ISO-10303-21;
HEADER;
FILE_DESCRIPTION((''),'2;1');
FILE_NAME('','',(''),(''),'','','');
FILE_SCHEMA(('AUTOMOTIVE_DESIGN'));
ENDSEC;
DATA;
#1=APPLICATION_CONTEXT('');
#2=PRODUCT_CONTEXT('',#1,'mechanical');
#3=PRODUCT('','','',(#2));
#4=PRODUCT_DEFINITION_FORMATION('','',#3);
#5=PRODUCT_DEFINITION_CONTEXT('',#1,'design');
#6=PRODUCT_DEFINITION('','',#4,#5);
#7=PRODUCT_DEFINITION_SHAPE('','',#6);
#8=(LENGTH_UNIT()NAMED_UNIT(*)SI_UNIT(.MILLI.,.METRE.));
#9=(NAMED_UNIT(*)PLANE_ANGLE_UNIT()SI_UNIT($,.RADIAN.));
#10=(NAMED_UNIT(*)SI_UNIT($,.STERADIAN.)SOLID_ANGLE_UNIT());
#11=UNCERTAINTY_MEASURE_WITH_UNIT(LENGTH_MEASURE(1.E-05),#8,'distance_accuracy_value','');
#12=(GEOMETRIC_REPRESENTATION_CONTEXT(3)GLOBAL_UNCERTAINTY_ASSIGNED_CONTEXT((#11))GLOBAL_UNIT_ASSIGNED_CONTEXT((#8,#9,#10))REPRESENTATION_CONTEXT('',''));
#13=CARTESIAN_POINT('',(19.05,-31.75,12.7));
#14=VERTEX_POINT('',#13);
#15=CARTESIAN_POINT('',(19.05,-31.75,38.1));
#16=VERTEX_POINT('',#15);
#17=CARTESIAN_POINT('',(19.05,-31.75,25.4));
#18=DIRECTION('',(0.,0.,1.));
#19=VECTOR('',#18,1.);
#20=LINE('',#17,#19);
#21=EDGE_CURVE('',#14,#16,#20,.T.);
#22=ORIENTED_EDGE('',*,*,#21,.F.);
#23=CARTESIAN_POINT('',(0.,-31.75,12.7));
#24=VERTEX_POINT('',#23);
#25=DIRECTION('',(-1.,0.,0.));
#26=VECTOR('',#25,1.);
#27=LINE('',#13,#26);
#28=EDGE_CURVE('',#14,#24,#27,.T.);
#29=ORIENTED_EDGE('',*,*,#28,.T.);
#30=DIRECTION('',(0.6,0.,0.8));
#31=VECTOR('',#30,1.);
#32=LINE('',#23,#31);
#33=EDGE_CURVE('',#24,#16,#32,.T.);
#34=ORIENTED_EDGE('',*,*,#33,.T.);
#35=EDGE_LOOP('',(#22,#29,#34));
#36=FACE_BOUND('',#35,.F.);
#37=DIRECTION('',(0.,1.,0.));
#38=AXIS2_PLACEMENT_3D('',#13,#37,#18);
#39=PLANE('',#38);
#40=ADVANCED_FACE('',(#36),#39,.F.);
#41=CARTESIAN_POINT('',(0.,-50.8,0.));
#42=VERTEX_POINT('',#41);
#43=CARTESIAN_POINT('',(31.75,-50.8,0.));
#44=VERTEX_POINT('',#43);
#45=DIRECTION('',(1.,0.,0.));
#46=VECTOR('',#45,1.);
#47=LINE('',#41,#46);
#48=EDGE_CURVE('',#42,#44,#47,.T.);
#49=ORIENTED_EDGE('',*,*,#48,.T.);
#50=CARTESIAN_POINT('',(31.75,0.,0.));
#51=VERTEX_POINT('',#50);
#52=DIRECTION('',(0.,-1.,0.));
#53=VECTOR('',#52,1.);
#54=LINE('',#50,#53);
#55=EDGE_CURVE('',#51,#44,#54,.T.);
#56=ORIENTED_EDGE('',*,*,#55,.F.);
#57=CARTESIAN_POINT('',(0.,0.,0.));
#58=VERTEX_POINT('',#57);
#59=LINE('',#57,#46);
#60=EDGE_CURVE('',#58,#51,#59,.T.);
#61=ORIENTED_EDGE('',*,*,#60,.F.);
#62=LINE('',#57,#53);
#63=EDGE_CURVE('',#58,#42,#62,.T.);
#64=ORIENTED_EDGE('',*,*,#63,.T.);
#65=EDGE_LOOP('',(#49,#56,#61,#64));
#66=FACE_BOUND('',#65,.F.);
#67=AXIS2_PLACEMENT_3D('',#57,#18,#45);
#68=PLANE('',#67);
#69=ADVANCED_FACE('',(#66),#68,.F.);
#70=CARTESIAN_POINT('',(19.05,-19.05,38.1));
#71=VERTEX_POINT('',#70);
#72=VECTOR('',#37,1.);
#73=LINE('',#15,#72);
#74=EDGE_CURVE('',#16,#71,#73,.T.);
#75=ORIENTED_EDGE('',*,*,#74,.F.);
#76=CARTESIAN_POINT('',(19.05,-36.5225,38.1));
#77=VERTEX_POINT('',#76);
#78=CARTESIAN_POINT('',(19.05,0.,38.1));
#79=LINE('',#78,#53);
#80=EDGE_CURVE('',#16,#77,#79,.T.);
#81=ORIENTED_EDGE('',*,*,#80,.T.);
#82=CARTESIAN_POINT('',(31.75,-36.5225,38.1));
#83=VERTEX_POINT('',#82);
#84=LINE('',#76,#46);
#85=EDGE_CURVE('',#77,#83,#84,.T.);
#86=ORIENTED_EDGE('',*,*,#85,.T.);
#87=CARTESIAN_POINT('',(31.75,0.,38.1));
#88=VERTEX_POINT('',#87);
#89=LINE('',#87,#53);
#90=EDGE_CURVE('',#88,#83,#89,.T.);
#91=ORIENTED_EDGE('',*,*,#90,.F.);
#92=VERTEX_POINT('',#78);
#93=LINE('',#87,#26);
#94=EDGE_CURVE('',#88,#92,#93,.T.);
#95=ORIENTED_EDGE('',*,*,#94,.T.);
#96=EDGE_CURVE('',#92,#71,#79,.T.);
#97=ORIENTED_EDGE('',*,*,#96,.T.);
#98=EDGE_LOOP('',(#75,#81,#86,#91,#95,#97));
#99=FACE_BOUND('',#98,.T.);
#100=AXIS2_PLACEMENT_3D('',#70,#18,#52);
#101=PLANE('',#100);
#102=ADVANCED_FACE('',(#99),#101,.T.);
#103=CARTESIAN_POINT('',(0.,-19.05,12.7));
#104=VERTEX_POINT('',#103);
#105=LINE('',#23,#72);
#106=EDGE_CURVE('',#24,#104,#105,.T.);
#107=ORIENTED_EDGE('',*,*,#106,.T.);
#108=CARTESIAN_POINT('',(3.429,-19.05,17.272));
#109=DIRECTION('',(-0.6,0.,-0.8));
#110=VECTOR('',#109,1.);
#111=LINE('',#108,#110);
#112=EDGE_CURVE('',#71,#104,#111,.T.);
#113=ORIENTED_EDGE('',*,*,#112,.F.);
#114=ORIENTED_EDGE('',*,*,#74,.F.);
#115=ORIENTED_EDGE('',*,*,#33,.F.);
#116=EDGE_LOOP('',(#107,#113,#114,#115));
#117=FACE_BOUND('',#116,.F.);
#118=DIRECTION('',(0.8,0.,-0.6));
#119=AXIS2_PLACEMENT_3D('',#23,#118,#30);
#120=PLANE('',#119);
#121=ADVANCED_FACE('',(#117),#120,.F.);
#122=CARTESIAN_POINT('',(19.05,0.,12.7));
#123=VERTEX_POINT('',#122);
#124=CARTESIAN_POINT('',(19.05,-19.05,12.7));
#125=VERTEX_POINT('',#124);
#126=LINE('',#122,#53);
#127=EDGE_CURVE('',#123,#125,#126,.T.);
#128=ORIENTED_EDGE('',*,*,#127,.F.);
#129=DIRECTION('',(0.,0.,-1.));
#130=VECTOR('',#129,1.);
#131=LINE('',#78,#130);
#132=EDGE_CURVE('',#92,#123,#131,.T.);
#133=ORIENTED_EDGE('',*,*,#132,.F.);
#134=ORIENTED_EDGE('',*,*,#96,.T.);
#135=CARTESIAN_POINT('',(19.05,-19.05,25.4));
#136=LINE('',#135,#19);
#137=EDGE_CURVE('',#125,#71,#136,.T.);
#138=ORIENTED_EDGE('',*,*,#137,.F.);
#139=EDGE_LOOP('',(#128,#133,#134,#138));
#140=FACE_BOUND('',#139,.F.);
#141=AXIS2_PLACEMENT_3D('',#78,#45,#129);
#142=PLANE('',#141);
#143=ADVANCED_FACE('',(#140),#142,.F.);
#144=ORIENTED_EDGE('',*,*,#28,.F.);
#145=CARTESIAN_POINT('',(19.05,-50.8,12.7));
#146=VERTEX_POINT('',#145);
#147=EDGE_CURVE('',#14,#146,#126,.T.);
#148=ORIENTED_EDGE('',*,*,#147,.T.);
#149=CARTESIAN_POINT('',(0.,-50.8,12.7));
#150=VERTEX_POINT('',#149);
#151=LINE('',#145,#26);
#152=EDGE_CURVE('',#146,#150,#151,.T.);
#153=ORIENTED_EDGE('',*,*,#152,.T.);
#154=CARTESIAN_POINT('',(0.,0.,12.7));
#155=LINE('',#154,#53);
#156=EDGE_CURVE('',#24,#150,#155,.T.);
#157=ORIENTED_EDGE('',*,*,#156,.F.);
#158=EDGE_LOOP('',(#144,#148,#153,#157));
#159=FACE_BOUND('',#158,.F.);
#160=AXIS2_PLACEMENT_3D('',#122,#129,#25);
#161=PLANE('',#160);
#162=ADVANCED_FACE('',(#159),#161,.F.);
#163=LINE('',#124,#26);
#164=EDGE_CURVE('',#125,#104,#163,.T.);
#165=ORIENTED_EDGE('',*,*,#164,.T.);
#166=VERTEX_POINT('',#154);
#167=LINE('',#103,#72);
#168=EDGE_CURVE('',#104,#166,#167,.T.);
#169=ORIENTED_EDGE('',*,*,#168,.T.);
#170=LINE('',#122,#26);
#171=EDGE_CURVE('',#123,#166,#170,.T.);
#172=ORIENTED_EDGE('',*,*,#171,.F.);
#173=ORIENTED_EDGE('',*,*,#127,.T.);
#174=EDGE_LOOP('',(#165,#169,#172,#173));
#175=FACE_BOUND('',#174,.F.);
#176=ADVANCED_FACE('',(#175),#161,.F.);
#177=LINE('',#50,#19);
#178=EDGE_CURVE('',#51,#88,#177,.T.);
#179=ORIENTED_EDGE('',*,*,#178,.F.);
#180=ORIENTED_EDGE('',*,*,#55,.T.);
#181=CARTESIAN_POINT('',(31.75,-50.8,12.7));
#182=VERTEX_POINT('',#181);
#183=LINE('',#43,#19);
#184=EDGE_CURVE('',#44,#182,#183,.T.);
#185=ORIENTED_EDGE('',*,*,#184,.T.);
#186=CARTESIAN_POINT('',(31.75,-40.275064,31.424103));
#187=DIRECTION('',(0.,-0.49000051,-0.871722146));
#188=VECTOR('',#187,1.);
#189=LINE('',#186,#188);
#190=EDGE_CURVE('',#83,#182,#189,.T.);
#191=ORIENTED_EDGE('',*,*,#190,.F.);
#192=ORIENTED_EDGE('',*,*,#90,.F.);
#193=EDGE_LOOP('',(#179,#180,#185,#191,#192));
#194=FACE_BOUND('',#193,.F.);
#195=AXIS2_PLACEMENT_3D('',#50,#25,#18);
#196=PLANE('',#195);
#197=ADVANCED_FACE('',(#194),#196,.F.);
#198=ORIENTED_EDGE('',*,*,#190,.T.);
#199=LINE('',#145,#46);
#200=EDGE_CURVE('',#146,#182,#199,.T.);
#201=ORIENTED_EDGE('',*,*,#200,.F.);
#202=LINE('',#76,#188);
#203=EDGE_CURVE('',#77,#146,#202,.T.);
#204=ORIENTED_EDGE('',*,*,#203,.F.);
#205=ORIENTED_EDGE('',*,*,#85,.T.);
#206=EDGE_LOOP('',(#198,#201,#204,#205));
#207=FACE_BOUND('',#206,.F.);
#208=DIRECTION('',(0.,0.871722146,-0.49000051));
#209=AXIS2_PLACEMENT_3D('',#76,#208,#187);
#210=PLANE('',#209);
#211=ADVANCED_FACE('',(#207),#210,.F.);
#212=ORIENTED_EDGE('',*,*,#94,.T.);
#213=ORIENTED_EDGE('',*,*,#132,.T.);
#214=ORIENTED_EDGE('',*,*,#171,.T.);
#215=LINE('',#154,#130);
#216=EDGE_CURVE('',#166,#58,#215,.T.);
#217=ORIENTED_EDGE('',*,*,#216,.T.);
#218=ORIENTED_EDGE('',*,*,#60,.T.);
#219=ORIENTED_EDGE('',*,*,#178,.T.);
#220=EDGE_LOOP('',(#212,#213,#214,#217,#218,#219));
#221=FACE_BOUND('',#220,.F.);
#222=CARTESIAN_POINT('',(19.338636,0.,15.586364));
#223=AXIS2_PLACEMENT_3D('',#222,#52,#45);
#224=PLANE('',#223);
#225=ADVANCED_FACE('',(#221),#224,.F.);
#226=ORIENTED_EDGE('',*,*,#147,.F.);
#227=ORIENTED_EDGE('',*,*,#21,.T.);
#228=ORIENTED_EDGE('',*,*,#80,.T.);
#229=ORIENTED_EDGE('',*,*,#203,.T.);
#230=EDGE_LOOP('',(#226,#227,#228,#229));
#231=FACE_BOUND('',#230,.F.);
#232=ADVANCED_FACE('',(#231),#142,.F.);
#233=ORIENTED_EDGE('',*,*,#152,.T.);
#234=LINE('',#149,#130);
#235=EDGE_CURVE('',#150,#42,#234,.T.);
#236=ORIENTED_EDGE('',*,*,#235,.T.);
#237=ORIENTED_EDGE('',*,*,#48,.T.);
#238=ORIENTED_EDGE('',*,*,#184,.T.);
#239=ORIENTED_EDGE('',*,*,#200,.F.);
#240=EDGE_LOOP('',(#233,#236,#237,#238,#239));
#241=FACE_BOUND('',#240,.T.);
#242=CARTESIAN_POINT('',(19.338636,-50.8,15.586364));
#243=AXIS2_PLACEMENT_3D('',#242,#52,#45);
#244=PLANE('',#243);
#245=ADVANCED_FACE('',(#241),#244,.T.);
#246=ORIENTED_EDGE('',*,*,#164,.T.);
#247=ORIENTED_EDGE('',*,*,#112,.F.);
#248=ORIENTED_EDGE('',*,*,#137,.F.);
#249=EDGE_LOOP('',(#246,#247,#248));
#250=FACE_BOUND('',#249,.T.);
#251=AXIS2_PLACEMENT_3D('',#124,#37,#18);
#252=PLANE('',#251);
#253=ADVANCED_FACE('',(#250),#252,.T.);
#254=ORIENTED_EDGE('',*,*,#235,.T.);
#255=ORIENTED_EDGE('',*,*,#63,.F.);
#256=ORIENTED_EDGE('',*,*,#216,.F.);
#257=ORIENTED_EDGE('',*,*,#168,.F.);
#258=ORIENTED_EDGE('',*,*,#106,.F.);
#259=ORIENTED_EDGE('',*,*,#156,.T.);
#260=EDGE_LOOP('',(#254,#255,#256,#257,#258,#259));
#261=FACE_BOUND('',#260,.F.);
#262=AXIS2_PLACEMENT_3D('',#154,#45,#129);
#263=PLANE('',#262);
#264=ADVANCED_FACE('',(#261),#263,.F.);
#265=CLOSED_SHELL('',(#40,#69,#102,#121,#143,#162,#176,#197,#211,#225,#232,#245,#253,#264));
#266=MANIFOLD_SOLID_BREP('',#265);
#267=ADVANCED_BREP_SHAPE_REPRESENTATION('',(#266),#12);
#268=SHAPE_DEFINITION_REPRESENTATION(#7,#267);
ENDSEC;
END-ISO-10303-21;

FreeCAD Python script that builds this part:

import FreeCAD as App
import Part
import Sketcher
Q = App.Units.Quantity

doc = App.newDocument("Part")
params = doc.addObject("Spreadsheet::Sheet", "Params")
for row, (alias, value) in enumerate([
    ("sketch1_height", "1 in"),
    ("sketch1_width", "0.5 in"),
    ("sketch1_width2", "1.25 in"),
    ("pad1_length", "2 in"),
    ("sketch2_height", "1 in"),
    ("pocket1_length", "1 in"),
    ("sketch3_height", "1 in"),
    ("sketch3_width", "0.5 in"),
    ("pad2_length", "0.75 in"),
    ("sketch4_height", "1 in"),
    ("sketch4_width", "0.75 in"),
    ("pocket2_length", "1 in"),
], start=1):
    params.set(f"A{row}", alias)
    params.set(f"B{row}", "=" + value)
    params.setAlias(f"B{row}", alias)

body = doc.addObject("PartDesign::Body", "Body")

# Sketch on XZ plane
sketch1 = body.newObject("Sketcher::SketchObject", "Sketch")
sketch1.AttachmentSupport = (doc.getObject("XZ_Plane"), [""])
sketch1.MapMode = "FlatFace"
sketch1.addGeometry([
    Part.LineSegment(App.Vector(0, 13, 0), App.Vector(0, 0, 0)),  # 0
    Part.LineSegment(App.Vector(0, 0, 0), App.Vector(32, 0, 0)),  # 1
    Part.LineSegment(App.Vector(32, 0, 0), App.Vector(32, 38, 0)),  # 2
    Part.LineSegment(App.Vector(32, 38, 0), App.Vector(19, 38, 0)),  # 3
    Part.LineSegment(App.Vector(19, 38, 0), App.Vector(19, 13, 0)),  # 4
    Part.LineSegment(App.Vector(19, 13, 0), App.Vector(0, 13, 0)),  # 5
], False)
sketch1.addConstraint([
    Sketcher.Constraint("Coincident", 0, 2, 1, 1),
    Sketcher.Constraint("Coincident", 1, 2, 2, 1),
    Sketcher.Constraint("Coincident", 2, 2, 3, 1),
    Sketcher.Constraint("Coincident", 3, 2, 4, 1),
    Sketcher.Constraint("Coincident", 4, 2, 5, 1),
    Sketcher.Constraint("Coincident", 5, 2, 0, 1),
    Sketcher.Constraint("Vertical", 0),
    Sketcher.Constraint("Horizontal", 1),
    Sketcher.Constraint("Vertical", 2),
    Sketcher.Constraint("Horizontal", 3),
    Sketcher.Constraint("Vertical", 4),
    Sketcher.Constraint("Horizontal", 5),
    Sketcher.Constraint("Coincident", 0, 2, -1, 1),
    Sketcher.Constraint("Equal", 3, 0),
    Sketcher.Constraint("DistanceY", 4, 2, 4, 1, Q("1 in")),
    Sketcher.Constraint("DistanceX", 3, 2, 3, 1, Q("0.5 in")),
    Sketcher.Constraint("DistanceX", 1, 1, 1, 2, Q("1.25 in")),
])
sketch1.setExpression("Constraints[14]", "Params.sketch1_height")
sketch1.setExpression("Constraints[15]", "Params.sketch1_width")
sketch1.setExpression("Constraints[16]", "Params.sketch1_width2")
pad1 = body.newObject("PartDesign::Pad", "Pad")
pad1.Profile = sketch1
pad1.setExpression("Length", "Params.pad1_length")

# Sketch on YZ plane
sketch2 = body.newObject("Sketcher::SketchObject", "Sketch001")
sketch2.AttachmentSupport = (doc.getObject("YZ_Plane"), [""])
sketch2.MapMode = "FlatFace"
sketch2.AttachmentOffset = App.Placement(App.Vector(0, 0, 0.75 * 25.4), App.Rotation())
sketch2.addGeometry([
    Part.LineSegment(App.Vector(-37, 38, 0), App.Vector(-51, 13, 0)),
    Part.LineSegment(App.Vector(-51, 13, 0), App.Vector(-51, 38, 0)),
    Part.LineSegment(App.Vector(-51, 38, 0), App.Vector(-37, 38, 0)),
], False)
sketch2.addConstraint([
    Sketcher.Constraint("Coincident", 0, 2, 1, 1),
    Sketcher.Constraint("Coincident", 1, 2, 2, 1),
    Sketcher.Constraint("Coincident", 2, 2, 0, 1),
    Sketcher.Constraint("Vertical", 1),
    Sketcher.Constraint("Horizontal", 2),
    Sketcher.Constraint("DistanceY", 1, 1, 1, 2, Q("1 in")),
    Sketcher.Constraint("DistanceX", 0, 2, -1, 1, Q("2 in")),
    Sketcher.Constraint("DistanceY", -1, 1, 0, 2, Q("0.5 in")),
    Sketcher.Constraint("DistanceX", 2, 1, 2, 2, 14.2775),
])
sketch2.setExpression("Constraints[5]", "Params.sketch2_height")
pocket1 = body.newObject("PartDesign::Pocket", "Pocket")
pocket1.Profile = sketch2
pocket1.setExpression("Length", "Params.pocket1_length")
pocket1.Reversed = True

# Sketch on YZ plane
sketch3 = body.newObject("Sketcher::SketchObject", "Sketch002")
sketch3.AttachmentSupport = (doc.getObject("YZ_Plane"), [""])
sketch3.MapMode = "FlatFace"
sketch3.AttachmentOffset = App.Placement(App.Vector(0, 0, 0.75 * 25.4), App.Rotation())
sketch3.addGeometry([
    Part.LineSegment(App.Vector(-19, 38, 0), App.Vector(-19, 13, 0)),
    Part.LineSegment(App.Vector(-19, 13, 0), App.Vector(-32, 13, 0)),
    Part.LineSegment(App.Vector(-32, 13, 0), App.Vector(-32, 38, 0)),
    Part.LineSegment(App.Vector(-32, 38, 0), App.Vector(-19, 38, 0)),
], False)
sketch3.addConstraint([
    Sketcher.Constraint("Coincident", 0, 2, 1, 1),
    Sketcher.Constraint("Coincident", 1, 2, 2, 1),
    Sketcher.Constraint("Coincident", 2, 2, 3, 1),
    Sketcher.Constraint("Coincident", 3, 2, 0, 1),
    Sketcher.Constraint("Vertical", 0),
    Sketcher.Constraint("Horizontal", 1),
    Sketcher.Constraint("Vertical", 2),
    Sketcher.Constraint("Horizontal", 3),
    Sketcher.Constraint("DistanceY", 0, 2, 0, 1, Q("1 in")),
    Sketcher.Constraint("DistanceX", 1, 2, 1, 1, Q("0.5 in")),
    Sketcher.Constraint("DistanceY", -1, 1, 0, 2, Q("0.5 in")),
    Sketcher.Constraint("DistanceX", 0, 2, -1, 1, Q("0.75 in")),
])
sketch3.setExpression("Constraints[8]", "Params.sketch3_height")
sketch3.setExpression("Constraints[9]", "Params.sketch3_width")
pad2 = body.newObject("PartDesign::Pad", "Pad001")
pad2.Profile = sketch3
pad2.setExpression("Length", "Params.pad2_length")
pad2.Reversed = True

# Sketch on XZ plane
sketch4 = body.newObject("Sketcher::SketchObject", "Sketch003")
sketch4.AttachmentSupport = (doc.getObject("XZ_Plane"), [""])
sketch4.MapMode = "FlatFace"
sketch4.AttachmentOffset = App.Placement(App.Vector(0, 0, 1.25 * 25.4), App.Rotation())
sketch4.addGeometry([
    Part.LineSegment(App.Vector(0, 13, 0), App.Vector(19, 38, 0)),
    Part.LineSegment(App.Vector(19, 38, 0), App.Vector(0, 38, 0)),
    Part.LineSegment(App.Vector(0, 38, 0), App.Vector(0, 13, 0)),
], False)
sketch4.addConstraint([
    Sketcher.Constraint("Coincident", 0, 2, 1, 1),
    Sketcher.Constraint("Coincident", 1, 2, 2, 1),
    Sketcher.Constraint("Coincident", 2, 2, 0, 1),
    Sketcher.Constraint("Horizontal", 1),
    Sketcher.Constraint("Vertical", 2),
    Sketcher.Constraint("PointOnObject", 1, 2, -2),
    Sketcher.Constraint("DistanceY", 2, 2, 2, 1, Q("1 in")),
    Sketcher.Constraint("DistanceX", 1, 2, 1, 1, Q("0.75 in")),
    Sketcher.Constraint("DistanceY", -1, 1, 0, 2, Q("1.5 in")),
])
sketch4.setExpression("Constraints[6]", "Params.sketch4_height")
sketch4.setExpression("Constraints[7]", "Params.sketch4_width")
pocket2 = body.newObject("PartDesign::Pocket", "Pocket001")
pocket2.Profile = sketch4
pocket2.setExpression("Length", "Params.pocket2_length")

doc.recompute()
